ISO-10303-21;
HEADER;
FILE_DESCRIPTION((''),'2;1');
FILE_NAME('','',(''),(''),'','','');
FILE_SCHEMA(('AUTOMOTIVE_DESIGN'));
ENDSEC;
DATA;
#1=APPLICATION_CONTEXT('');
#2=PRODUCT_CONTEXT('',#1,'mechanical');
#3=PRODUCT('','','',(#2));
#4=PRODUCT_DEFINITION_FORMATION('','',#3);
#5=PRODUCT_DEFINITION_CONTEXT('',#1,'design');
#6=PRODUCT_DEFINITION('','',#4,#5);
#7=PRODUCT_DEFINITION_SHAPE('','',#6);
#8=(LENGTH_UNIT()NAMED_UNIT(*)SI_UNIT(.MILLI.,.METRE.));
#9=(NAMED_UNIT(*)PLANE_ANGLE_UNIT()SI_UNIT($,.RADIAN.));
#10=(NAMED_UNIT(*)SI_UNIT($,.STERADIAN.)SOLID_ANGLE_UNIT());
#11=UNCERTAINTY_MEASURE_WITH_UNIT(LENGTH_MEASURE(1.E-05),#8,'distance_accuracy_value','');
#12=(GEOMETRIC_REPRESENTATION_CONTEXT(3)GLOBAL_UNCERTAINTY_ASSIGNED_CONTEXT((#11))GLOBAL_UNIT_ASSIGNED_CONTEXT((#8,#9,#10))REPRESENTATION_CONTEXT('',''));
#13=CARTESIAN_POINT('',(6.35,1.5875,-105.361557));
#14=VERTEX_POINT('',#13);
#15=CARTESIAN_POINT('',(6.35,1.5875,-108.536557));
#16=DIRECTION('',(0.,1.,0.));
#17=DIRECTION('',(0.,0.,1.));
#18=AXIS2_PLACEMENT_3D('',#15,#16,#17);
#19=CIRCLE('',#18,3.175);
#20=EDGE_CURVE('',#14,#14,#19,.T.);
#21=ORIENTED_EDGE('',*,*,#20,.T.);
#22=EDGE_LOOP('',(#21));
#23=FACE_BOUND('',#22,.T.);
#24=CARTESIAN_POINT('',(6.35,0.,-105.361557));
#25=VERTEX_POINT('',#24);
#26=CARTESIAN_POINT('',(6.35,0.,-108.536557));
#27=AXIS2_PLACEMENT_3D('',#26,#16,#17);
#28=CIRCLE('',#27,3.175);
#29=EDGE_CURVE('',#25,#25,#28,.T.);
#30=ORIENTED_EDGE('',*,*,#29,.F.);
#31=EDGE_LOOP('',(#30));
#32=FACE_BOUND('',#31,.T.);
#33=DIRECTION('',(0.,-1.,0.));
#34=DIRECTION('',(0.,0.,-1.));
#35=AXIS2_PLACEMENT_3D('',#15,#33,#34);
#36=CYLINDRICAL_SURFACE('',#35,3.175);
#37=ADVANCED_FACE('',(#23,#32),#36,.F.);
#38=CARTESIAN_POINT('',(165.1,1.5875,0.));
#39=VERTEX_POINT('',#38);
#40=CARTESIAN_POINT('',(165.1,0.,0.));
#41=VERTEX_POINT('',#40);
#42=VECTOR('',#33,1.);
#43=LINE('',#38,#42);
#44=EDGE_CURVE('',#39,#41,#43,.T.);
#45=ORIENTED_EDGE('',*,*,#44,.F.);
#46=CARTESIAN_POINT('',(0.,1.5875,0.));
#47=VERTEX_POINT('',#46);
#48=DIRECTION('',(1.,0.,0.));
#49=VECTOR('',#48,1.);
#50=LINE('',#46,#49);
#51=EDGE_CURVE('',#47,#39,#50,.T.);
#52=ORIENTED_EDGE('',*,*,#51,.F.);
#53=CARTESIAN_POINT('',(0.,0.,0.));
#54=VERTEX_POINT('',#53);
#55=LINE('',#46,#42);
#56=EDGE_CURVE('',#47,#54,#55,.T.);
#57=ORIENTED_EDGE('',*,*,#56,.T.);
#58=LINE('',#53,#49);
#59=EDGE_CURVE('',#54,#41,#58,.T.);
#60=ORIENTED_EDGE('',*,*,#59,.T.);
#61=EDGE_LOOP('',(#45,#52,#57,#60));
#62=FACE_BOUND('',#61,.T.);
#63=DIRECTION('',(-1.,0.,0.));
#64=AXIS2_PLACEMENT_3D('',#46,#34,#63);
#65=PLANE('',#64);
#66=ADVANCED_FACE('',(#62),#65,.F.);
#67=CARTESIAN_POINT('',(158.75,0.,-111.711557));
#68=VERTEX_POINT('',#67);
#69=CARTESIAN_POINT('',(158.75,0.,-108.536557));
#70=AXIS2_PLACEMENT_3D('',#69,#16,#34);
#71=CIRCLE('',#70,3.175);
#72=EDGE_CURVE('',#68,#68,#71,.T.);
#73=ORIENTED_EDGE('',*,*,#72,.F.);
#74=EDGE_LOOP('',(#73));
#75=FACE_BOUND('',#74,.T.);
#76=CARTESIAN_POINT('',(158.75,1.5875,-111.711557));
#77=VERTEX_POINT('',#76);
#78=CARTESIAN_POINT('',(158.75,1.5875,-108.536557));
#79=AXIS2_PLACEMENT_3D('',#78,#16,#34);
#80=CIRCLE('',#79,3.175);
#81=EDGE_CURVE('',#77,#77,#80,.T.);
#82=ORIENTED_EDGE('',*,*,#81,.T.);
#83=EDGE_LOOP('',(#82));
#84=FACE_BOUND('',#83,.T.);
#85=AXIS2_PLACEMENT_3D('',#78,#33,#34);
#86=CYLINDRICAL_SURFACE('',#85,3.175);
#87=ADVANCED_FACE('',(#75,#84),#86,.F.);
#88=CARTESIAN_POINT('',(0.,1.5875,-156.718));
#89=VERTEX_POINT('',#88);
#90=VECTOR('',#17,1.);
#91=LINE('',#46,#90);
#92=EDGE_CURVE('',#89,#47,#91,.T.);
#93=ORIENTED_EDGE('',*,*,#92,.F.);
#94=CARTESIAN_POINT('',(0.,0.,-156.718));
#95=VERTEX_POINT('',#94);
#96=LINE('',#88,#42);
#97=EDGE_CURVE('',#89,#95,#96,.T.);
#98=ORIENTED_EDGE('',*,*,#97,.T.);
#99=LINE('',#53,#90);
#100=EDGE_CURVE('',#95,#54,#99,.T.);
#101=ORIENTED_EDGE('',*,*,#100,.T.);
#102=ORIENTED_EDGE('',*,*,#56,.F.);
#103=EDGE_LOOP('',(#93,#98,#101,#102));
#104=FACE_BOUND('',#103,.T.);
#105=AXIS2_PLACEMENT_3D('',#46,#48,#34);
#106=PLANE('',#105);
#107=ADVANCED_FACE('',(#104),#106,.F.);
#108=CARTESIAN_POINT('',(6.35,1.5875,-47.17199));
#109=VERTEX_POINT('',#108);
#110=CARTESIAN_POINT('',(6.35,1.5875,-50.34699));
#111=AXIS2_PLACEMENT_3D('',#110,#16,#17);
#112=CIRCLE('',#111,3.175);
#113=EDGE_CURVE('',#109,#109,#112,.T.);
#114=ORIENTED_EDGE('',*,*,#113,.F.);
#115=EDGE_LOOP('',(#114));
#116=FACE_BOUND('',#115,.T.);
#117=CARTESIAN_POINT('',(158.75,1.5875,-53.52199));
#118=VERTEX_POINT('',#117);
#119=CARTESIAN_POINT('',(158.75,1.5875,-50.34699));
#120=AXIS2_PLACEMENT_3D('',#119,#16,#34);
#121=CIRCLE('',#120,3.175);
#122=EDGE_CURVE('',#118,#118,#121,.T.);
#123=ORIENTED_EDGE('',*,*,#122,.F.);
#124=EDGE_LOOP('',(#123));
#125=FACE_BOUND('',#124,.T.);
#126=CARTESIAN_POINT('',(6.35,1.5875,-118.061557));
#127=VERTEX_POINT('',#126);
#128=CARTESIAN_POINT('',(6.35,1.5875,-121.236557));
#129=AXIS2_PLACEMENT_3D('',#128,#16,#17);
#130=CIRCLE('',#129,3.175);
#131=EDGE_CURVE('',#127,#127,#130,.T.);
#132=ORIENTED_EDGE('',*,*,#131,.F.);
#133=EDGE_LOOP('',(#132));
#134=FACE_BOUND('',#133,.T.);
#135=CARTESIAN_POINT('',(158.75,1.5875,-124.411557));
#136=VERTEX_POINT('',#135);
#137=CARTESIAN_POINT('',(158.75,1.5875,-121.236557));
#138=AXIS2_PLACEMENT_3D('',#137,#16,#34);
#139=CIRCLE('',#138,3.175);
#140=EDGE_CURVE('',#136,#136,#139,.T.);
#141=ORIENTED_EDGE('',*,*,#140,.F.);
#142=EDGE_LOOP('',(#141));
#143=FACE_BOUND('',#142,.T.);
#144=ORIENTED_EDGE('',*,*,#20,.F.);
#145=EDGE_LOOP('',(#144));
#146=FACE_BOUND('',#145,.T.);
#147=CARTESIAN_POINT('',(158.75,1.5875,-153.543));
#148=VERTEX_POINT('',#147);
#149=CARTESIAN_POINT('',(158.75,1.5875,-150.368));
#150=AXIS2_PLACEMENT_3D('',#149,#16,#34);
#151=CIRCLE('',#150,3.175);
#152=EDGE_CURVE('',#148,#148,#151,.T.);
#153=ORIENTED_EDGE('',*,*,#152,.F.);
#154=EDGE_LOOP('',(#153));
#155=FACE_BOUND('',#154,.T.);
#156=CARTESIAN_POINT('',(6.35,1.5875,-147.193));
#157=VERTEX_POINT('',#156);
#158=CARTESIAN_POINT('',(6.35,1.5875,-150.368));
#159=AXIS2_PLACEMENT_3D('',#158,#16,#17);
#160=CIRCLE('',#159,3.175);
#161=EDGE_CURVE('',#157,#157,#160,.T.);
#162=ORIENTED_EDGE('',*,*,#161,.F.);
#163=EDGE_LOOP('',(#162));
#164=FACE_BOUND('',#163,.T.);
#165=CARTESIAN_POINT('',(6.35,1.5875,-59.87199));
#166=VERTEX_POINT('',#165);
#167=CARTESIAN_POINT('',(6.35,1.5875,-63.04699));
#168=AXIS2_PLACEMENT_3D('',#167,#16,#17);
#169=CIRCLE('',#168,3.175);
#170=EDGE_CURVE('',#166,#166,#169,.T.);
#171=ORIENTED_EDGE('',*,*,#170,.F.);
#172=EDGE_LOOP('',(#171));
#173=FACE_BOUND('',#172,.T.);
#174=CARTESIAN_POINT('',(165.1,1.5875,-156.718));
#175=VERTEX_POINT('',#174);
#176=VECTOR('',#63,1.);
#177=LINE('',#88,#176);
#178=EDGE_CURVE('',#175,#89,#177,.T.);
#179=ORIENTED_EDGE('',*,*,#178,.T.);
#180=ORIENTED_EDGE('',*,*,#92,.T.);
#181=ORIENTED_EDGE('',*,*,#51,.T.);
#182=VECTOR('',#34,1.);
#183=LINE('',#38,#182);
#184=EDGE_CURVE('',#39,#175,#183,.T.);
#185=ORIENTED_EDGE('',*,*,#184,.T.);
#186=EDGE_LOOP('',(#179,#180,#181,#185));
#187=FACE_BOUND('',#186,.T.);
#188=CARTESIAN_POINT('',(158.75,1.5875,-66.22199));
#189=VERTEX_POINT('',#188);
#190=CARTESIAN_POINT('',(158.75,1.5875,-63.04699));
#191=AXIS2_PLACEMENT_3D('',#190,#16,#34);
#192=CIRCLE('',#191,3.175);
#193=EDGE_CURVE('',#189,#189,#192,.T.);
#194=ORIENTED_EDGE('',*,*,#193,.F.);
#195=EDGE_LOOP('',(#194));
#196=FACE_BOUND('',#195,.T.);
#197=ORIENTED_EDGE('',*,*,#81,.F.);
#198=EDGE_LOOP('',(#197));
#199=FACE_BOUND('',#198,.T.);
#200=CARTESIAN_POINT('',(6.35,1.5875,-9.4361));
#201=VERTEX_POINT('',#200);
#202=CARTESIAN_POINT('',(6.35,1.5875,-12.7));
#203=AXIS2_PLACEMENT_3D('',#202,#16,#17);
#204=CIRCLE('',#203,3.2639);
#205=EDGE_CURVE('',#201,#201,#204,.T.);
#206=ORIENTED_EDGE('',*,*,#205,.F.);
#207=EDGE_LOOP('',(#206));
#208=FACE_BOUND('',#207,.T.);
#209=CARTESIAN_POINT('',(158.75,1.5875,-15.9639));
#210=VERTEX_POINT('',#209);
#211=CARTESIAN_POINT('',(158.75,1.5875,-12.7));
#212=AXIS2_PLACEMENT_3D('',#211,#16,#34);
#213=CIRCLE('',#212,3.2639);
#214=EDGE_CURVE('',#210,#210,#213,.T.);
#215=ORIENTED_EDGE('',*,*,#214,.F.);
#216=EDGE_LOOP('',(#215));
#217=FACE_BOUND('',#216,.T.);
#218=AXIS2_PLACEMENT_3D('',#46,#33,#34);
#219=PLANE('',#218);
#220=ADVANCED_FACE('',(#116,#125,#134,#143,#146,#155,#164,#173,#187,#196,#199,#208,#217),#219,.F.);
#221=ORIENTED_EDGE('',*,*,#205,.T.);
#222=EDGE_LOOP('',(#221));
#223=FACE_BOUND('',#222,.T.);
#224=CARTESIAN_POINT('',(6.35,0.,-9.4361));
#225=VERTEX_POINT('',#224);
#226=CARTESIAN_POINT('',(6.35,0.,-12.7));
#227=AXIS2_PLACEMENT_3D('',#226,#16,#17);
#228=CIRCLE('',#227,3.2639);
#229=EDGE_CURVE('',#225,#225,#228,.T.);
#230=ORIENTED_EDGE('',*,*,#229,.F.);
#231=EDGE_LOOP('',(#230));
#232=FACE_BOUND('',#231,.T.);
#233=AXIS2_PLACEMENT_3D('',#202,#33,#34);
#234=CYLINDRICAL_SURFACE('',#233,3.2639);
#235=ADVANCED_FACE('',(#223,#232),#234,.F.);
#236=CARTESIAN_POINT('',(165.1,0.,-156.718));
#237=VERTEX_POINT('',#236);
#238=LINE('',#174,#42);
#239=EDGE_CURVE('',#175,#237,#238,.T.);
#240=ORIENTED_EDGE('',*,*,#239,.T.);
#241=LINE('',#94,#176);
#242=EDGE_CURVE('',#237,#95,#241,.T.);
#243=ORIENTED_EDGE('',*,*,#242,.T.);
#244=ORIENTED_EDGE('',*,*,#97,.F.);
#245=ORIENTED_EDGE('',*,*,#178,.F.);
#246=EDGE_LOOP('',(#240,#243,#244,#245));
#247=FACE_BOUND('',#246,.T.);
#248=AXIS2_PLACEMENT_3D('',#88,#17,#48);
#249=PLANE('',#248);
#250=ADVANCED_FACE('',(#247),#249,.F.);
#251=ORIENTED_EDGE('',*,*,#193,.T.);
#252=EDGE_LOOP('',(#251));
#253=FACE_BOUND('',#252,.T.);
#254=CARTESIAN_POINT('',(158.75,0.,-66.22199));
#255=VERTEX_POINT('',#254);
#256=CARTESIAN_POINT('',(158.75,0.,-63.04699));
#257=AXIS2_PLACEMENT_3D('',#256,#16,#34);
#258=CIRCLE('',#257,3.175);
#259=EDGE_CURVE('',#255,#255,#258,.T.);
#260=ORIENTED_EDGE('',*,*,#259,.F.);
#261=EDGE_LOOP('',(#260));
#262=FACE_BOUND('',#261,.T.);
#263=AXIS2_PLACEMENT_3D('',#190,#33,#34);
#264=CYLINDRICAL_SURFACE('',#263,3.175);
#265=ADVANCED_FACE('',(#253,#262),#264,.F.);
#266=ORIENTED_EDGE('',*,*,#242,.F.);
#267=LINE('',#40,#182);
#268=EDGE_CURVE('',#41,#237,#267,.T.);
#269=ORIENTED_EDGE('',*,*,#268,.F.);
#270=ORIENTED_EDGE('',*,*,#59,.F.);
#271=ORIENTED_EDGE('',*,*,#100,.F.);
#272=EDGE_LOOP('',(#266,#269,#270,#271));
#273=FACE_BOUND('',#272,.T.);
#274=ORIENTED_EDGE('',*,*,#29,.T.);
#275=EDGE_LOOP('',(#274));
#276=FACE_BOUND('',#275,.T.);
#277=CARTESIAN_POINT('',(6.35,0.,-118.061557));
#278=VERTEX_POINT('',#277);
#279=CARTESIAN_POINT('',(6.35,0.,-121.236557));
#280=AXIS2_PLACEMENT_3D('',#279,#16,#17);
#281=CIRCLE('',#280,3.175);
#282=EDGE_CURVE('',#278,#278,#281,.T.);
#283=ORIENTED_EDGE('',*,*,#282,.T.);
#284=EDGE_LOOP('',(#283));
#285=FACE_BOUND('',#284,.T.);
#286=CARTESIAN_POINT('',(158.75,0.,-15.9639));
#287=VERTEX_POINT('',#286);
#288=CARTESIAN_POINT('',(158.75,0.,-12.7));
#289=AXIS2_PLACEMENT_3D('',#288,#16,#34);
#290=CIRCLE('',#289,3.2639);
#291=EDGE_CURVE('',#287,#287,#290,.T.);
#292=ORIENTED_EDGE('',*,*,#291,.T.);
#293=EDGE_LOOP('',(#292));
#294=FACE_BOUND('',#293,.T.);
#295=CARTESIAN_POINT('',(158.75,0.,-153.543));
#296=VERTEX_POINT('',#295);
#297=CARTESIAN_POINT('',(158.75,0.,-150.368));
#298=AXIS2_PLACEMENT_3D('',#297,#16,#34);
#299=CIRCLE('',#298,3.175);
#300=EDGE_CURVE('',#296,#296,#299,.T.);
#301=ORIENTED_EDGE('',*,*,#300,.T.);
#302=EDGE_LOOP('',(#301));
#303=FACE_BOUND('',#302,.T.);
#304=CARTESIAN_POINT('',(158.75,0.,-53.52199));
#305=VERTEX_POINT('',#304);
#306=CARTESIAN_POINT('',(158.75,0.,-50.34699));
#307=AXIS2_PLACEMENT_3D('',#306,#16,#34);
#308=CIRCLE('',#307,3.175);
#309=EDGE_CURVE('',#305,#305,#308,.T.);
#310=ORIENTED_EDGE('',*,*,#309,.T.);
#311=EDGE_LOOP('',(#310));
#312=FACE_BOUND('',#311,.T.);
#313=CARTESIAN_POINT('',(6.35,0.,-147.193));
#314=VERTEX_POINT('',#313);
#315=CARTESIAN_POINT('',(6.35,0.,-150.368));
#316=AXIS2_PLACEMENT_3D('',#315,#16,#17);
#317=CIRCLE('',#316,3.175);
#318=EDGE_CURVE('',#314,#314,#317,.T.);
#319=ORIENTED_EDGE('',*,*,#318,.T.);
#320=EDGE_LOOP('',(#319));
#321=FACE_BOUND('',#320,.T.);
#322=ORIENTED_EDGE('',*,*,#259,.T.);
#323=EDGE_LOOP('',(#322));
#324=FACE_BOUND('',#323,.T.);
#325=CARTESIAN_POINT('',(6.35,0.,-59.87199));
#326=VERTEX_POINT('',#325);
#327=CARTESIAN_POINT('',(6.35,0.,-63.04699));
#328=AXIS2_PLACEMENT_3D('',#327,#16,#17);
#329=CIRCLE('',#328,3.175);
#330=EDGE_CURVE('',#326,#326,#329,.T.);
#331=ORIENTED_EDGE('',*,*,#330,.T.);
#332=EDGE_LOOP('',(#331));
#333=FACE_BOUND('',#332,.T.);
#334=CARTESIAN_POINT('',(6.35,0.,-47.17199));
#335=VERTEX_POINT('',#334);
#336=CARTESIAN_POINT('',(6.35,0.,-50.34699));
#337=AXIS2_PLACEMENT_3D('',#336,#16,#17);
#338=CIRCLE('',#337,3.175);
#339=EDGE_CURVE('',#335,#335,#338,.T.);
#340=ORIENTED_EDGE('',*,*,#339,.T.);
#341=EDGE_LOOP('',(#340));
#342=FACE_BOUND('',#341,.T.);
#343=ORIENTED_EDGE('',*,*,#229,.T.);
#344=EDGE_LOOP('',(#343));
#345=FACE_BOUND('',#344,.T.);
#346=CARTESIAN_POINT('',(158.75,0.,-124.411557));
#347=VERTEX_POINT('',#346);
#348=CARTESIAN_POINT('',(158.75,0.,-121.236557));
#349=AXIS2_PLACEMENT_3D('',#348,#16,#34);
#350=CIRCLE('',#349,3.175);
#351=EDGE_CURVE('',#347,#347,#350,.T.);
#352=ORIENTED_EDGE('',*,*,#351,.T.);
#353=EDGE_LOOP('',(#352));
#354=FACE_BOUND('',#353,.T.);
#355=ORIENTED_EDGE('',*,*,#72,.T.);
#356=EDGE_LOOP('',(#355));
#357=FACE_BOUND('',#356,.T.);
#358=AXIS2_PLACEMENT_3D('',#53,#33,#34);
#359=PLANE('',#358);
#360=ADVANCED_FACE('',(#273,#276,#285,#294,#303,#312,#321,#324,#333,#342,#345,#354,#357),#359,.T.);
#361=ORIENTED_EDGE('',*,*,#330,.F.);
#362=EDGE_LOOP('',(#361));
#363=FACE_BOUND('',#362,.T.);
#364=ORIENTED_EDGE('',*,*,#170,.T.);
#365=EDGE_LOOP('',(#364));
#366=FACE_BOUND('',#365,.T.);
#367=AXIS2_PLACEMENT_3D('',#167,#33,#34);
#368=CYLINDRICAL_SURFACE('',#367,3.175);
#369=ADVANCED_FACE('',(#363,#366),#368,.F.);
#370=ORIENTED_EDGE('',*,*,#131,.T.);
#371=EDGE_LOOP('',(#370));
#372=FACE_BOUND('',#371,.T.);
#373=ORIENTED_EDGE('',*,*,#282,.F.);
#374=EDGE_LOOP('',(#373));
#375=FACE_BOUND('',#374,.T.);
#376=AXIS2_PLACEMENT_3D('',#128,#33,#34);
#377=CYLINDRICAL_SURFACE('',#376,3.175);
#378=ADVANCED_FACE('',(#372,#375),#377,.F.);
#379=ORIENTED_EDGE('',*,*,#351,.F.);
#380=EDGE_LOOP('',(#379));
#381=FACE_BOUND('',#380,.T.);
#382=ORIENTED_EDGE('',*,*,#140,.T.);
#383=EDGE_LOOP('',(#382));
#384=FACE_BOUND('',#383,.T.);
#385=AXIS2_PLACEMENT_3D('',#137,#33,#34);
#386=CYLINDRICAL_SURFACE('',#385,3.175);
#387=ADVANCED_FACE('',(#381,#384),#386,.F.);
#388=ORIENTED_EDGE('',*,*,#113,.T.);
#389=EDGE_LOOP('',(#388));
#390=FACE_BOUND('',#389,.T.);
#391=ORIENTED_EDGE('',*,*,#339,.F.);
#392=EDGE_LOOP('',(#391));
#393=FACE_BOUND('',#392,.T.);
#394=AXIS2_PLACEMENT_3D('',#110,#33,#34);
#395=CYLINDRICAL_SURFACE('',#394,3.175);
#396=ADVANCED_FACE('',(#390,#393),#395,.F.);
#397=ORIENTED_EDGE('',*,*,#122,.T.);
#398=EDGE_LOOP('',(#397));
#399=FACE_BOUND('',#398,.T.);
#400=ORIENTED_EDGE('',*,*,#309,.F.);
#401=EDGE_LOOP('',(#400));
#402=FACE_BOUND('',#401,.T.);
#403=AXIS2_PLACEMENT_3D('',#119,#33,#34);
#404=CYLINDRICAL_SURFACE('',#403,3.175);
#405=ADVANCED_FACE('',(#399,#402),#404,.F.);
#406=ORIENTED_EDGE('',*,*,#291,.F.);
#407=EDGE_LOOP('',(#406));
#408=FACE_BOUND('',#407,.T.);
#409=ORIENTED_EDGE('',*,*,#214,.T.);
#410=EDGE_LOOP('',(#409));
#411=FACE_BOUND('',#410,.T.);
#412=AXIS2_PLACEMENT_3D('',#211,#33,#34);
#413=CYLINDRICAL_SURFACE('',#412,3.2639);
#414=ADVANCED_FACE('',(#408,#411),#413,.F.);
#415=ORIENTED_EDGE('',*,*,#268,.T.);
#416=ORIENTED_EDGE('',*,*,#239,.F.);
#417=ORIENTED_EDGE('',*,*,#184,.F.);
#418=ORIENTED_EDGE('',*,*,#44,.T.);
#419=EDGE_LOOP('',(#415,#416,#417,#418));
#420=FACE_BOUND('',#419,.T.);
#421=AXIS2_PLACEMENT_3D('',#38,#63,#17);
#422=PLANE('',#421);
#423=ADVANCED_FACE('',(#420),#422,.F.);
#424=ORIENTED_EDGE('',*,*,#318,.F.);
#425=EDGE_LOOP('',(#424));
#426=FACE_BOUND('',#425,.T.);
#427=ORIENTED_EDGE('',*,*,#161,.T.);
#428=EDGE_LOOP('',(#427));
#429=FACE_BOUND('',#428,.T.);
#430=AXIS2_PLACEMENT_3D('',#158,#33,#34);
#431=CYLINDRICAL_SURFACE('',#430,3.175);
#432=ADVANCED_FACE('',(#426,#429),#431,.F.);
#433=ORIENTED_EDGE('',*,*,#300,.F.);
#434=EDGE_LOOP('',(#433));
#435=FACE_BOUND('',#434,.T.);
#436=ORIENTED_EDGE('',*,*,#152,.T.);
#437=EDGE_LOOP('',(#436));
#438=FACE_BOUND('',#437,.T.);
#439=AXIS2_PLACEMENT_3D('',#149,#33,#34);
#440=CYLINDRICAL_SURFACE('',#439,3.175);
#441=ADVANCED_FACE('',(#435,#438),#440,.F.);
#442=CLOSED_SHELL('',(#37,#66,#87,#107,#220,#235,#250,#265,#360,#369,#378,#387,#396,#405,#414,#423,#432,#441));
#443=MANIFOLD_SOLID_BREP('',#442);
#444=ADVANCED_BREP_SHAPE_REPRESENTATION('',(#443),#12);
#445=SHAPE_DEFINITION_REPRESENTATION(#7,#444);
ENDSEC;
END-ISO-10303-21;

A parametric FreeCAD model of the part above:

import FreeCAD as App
import Part
import Sketcher
Q = App.Units.Quantity


def add_polygon(sketch, points):
    """Adds a closed chain of lines whose ends are joined by coincident constraints."""
    first, n = sketch.GeometryCount, len(points)
    for a, b in zip(points, points[1:] + points[:1]):
        sketch.addGeometry(Part.LineSegment(App.Vector(*a, 0), App.Vector(*b, 0)), False)
    for i in range(n):
        sketch.addConstraint(Sketcher.Constraint("Coincident", first + i, 2, first + (i + 1) % n, 1))

doc = App.newDocument("Part")
body = doc.addObject("PartDesign::Body", "Body")

# Sketch on XZ plane
sketch1 = body.newObject("Sketcher::SketchObject", "Sketch")
sketch1.AttachmentSupport = (doc.getObject("XZ_Plane"), [""])
sketch1.MapMode = "FlatFace"
add_polygon(sketch1, [(0, -156.7), (0, 0), (165.1, 0), (165.1, -156.7)])  # lines 0-3
sketch1.addGeometry(Part.Circle(App.Vector(6.3, -12.7, 0), App.Vector(0, 0, 1), 3.3), False)  # 4
sketch1.addGeometry(Part.Circle(App.Vector(6.3, -50.3, 0), App.Vector(0, 0, 1), 3.2), False)  # 5
sketch1.addGeometry(Part.Circle(App.Vector(6.3, -63, 0), App.Vector(0, 0, 1), 3.2), False)  # 6
sketch1.addGeometry(Part.Circle(App.Vector(158.8, -12.7, 0), App.Vector(0, 0, 1), 3.3), False)  # 7
sketch1.addGeometry(Part.Circle(App.Vector(158.8, -50.3, 0), App.Vector(0, 0, 1), 3.2), False)  # 8
sketch1.addGeometry(Part.Circle(App.Vector(158.8, -63, 0), App.Vector(0, 0, 1), 3.2), False)  # 9
sketch1.addGeometry(Part.Circle(App.Vector(6.3, -108.5, 0), App.Vector(0, 0, 1), 3.2), False)  # 10
sketch1.addGeometry(Part.Circle(App.Vector(6.3, -121.2, 0), App.Vector(0, 0, 1), 3.2), False)  # 11
sketch1.addGeometry(Part.Circle(App.Vector(6.3, -150.4, 0), App.Vector(0, 0, 1), 3.2), False)  # 12
sketch1.addGeometry(Part.Circle(App.Vector(158.8, -108.5, 0), App.Vector(0, 0, 1), 3.2), False)  # 13
sketch1.addGeometry(Part.Circle(App.Vector(158.8, -121.2, 0), App.Vector(0, 0, 1), 3.2), False)  # 14
sketch1.addGeometry(Part.Circle(App.Vector(158.8, -150.4, 0), App.Vector(0, 0, 1), 3.2), False)  # 15
sketch1.addConstraint([
    Sketcher.Constraint("Vertical", 0),
    Sketcher.Constraint("Horizontal", 1),
    Sketcher.Constraint("Vertical", 2),
    Sketcher.Constraint("Horizontal", 3),
    Sketcher.Constraint("Coincident", 0, 2, -1, 1),
    Sketcher.Constraint("Equal", 5, 6),
    Sketcher.Constraint("Equal", 4, 7),
    Sketcher.Constraint("Equal", 6, 8),
    Sketcher.Constraint("Equal", 8, 9),
    Sketcher.Constraint("Equal", 9, 10),
    Sketcher.Constraint("Equal", 10, 11),
    Sketcher.Constraint("Equal", 11, 12),
    Sketcher.Constraint("Equal", 12, 13),
    Sketcher.Constraint("Equal", 13, 14),
    Sketcher.Constraint("Equal", 14, 15),
    Sketcher.Constraint("Horizontal", 4, 3, 7, 3),
    Sketcher.Constraint("Horizontal", 5, 3, 8, 3),
    Sketcher.Constraint("Horizontal", 6, 3, 9, 3),
    Sketcher.Constraint("Horizontal", 10, 3, 13, 3),
    Sketcher.Constraint("Horizontal", 11, 3, 14, 3),
    Sketcher.Constraint("Horizontal", 12, 3, 15, 3),
    Sketcher.Constraint("Vertical", 4, 3, 5, 3),
    Sketcher.Constraint("Vertical", 5, 3, 6, 3),
    Sketcher.Constraint("Vertical", 7, 3, 8, 3),
    Sketcher.Constraint("Vertical", 8, 3, 9, 3),
    Sketcher.Constraint("Vertical", 6, 3, 10, 3),
    Sketcher.Constraint("Vertical", 10, 3, 11, 3),
    Sketcher.Constraint("Vertical", 11, 3, 12, 3),
    Sketcher.Constraint("Vertical", 9, 3, 13, 3),
    Sketcher.Constraint("Vertical", 13, 3, 14, 3),
    Sketcher.Constraint("Vertical", 14, 3, 15, 3),
    Sketcher.Constraint("Diameter", 5, Q("0.25 in")),
    Sketcher.Constraint("Diameter", 4, Q("0.257 in")),
    Sketcher.Constraint("DistanceX", 1, 1, 1, 2, Q("6.5 in")),
    Sketcher.Constraint("DistanceX", 4, 3, 7, 3, Q("6 in")),
    Sketcher.Constraint("DistanceY", 0, 1, 0, 2, Q("6.17 in")),
    Sketcher.Constraint("DistanceY", 4, 3, -1, 1, Q("0.5 in")),
    Sketcher.Constraint("DistanceY", 6, 3, 5, 3, Q("0.5 in")),
    Sketcher.Constraint("DistanceY", 11, 3, 10, 3, Q("0.5 in")),
    Sketcher.Constraint("DistanceX", -1, 1, 4, 3, Q("0.25 in")),
    Sketcher.Constraint("DistanceY", 12, 3, -1, 1, Q("5.92 in")),
    Sketcher.Constraint("DistanceY", 5, 3, -1, 1, Q("50.34699 mm")),
    Sketcher.Constraint("DistanceY", 10, 3, -1, 1, Q("108.536557 mm")),
])
pad1 = body.newObject("PartDesign::Pad", "Pad")
pad1.Profile = sketch1
pad1.Length = Q("0.0625 in")
pad1.Reversed = True

doc.recompute()
